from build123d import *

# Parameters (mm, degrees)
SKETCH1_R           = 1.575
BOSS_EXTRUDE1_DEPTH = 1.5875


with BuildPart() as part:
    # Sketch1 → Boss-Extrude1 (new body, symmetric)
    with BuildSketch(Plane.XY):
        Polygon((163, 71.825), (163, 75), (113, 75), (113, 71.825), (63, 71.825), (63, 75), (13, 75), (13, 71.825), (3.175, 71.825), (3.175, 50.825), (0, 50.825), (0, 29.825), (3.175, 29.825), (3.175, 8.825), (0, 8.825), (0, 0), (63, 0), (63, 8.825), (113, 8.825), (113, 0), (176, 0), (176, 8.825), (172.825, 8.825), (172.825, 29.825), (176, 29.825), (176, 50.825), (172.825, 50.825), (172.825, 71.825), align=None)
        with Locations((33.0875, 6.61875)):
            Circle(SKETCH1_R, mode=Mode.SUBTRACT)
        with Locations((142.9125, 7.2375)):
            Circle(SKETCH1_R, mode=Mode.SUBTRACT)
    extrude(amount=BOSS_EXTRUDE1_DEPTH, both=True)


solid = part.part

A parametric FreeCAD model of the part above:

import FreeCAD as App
import Part
import Sketcher


def add_polygon(sketch, points):
    """Adds a closed chain of lines whose ends are joined by coincident constraints."""
    first, n = sketch.GeometryCount, len(points)
    for a, b in zip(points, points[1:] + points[:1]):
        sketch.addGeometry(Part.LineSegment(App.Vector(*a, 0), App.Vector(*b, 0)), False)
    for i in range(n):
        sketch.addConstraint(Sketcher.Constraint("Coincident", first + i, 2, first + (i + 1) % n, 1))

doc = App.newDocument("Part")
params = doc.addObject("Spreadsheet::Sheet", "Params")
for row, (alias, value) in enumerate([
    ("sketch1_diameter", "3.15 mm"),
    ("sketch1_width", "50 mm"),
    ("sketch1_width2", "63 mm"),
    ("sketch1_height", "21 mm"),
    ("pad1_length", "3.175 mm"),
], start=1):
    params.set(f"A{row}", alias)
    params.set(f"B{row}", "=" + value)
    params.setAlias(f"B{row}", alias)

body = doc.addObject("PartDesign::Body", "Body")

# Sketch on XY plane
sketch1 = body.newObject("Sketcher::SketchObject", "Sketch")
sketch1.AttachmentSupport = (doc.getObject("XY_Plane"), [""])
sketch1.MapMode = "FlatFace"
add_polygon(sketch1, [(163, 71.8), (163, 75), (113, 75), (113, 71.8), (63, 71.8), (63, 75), (13, 75), (13, 71.8), (3.2, 71.8), (3.2, 50.8), (0, 50.8), (0, 29.8), (3.2, 29.8), (3.2, 8.8), (0, 8.8), (0, 0), (63, 0), (63, 8.8), (113, 8.8), (113, 0), (176, 0), (176, 8.8), (172.8, 8.8), (172.8, 29.8), (176, 29.8), (176, 50.8), (172.8, 50.8), (172.8, 71.8)])  # lines 0-27
sketch1.addGeometry(Part.Circle(App.Vector(33.1, 6.6, 0), App.Vector(0, 0, 1), 1.6), False)  # 28
sketch1.addGeometry(Part.Circle(App.Vector(142.9, 7.2, 0), App.Vector(0, 0, 1), 1.6), False)  # 29
sketch1.addConstraint([
    Sketcher.Constraint("Vertical", 0),
    Sketcher.Constraint("Horizontal", 1),
    Sketcher.Constraint("Vertical", 2),
    Sketcher.Constraint("Horizontal", 3),
    Sketcher.Constraint("Vertical", 4),
    Sketcher.Constraint("Horizontal", 5),
    Sketcher.Constraint("Vertical", 6),
    Sketcher.Constraint("Horizontal", 7),
    Sketcher.Constraint("Vertical", 8),
    Sketcher.Constraint("Horizontal", 9),
    Sketcher.Constraint("Vertical", 10),
    Sketcher.Constraint("Horizontal", 11),
    Sketcher.Constraint("Vertical", 12),
    Sketcher.Constraint("Horizontal", 13),
    Sketcher.Constraint("Vertical", 14),
    Sketcher.Constraint("Horizontal", 15),
    Sketcher.Constraint("Vertical", 16),
    Sketcher.Constraint("Horizontal", 17),
    Sketcher.Constraint("Vertical", 18),
    Sketcher.Constraint("Horizontal", 19),
    Sketcher.Constraint("Vertical", 20),
    Sketcher.Constraint("Horizontal", 21),
    Sketcher.Constraint("Vertical", 22),
    Sketcher.Constraint("Horizontal", 23),
    Sketcher.Constraint("Vertical", 24),
    Sketcher.Constraint("Horizontal", 25),
    Sketcher.Constraint("Vertical", 26),
    Sketcher.Constraint("Horizontal", 27),
    Sketcher.Constraint("Coincident", 14, 2, -1, 1),
    Sketcher.Constraint("Equal", 28, 29),
    Sketcher.Constraint("PointOnObject", 9, 2, -2),
    Sketcher.Constraint("PointOnObject", 18, 2, -1),
    Sketcher.Constraint("Horizontal", 1, 2, 4, 2),
    Sketcher.Constraint("Horizontal", 3, 2, 6, 2),
    Sketcher.Constraint("Horizontal", 13, 2, 16, 2),
    Sketcher.Constraint("Horizontal", 17, 2, 20, 2),
    Sketcher.Constraint("Horizontal", 11, 2, 22, 2),
    Sketcher.Constraint("Horizontal", 9, 2, 24, 2),
    Sketcher.Constraint("Horizontal", 7, 2, 26, 2),
    Sketcher.Constraint("Vertical", 8, 2, 11, 2),
    Sketcher.Constraint("Vertical", 4, 2, 15, 2),
    Sketcher.Constraint("Vertical", 2, 2, 17, 2),
    Sketcher.Constraint("Vertical", 20, 2, 23, 2),
    Sketcher.Constraint("Vertical", 22, 2, 25, 2),
    Sketcher.Constraint("Equal", 1, 3),
    Sketcher.Constraint("Equal", 3, 5),
    Sketcher.Constraint("Equal", 15, 19),
    Sketcher.Constraint("Equal", 13, 21),
    Sketcher.Constraint("Equal", 25, 0),
    Sketcher.Constraint("Equal", 8, 10),
    Sketcher.Constraint("Equal", 10, 12),
    Sketcher.Constraint("Diameter", 28, 3.15),
    Sketcher.Constraint("DistanceX", 1, 2, 1, 1, 50.0),
    Sketcher.Constraint("DistanceX", 15, 1, 15, 2, 63.0),
    Sketcher.Constraint("DistanceY", 8, 2, 8, 1, 21.0),
    Sketcher.Constraint("DistanceY", -1, 1, 0, 2, 75.0),
    Sketcher.Constraint("DistanceX", 7, 2, 7, 1, 9.825),
    Sketcher.Constraint("DistanceX", 28, 3, 29, 3, 109.825),
    Sketcher.Constraint("DistanceX", -1, 1, 28, 3, 33.0875),
    Sketcher.Constraint("DistanceY", -1, 1, 29, 3, 7.2375),
    Sketcher.Constraint("DistanceY", -1, 1, 28, 3, 6.61875),
])
sketch1.setExpression("Constraints[79]", "Params.sketch1_diameter")
sketch1.setExpression("Constraints[80]", "Params.sketch1_width")
sketch1.setExpression("Constraints[81]", "Params.sketch1_width2")
sketch1.setExpression("Constraints[82]", "Params.sketch1_height")
pad1 = body.newObject("PartDesign::Pad", "Pad")
pad1.Profile = sketch1
pad1.setExpression("Length", "Params.pad1_length")
pad1.Midplane = True

doc.recompute()
